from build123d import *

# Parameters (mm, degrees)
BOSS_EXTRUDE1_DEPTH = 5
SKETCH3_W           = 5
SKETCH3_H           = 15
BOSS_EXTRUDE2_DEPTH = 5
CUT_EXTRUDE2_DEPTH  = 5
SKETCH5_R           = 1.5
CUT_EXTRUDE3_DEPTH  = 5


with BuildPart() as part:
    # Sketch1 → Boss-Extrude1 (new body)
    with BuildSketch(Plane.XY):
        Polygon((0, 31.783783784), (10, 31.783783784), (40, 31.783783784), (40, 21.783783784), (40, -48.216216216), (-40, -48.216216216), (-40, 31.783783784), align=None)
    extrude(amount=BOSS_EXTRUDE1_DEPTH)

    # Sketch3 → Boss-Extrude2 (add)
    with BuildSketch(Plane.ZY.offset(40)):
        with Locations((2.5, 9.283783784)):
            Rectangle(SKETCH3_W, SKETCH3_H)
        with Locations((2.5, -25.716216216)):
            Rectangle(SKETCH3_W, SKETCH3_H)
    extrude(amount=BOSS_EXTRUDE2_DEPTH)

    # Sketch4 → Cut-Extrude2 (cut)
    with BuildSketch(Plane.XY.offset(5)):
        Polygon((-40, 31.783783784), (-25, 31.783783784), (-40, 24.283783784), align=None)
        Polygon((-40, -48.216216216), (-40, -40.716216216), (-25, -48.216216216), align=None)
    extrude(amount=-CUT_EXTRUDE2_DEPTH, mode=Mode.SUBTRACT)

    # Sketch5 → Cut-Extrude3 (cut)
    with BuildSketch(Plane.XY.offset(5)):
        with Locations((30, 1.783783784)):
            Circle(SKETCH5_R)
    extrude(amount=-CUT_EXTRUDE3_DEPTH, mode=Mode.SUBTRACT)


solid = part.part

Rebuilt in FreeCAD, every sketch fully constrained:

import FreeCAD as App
import Part
import Sketcher


def add_polygon(sketch, points):
    """Adds a closed chain of lines whose ends are joined by coincident constraints."""
    first, n = sketch.GeometryCount, len(points)
    for a, b in zip(points, points[1:] + points[:1]):
        sketch.addGeometry(Part.LineSegment(App.Vector(*a, 0), App.Vector(*b, 0)), False)
    for i in range(n):
        sketch.addConstraint(Sketcher.Constraint("Coincident", first + i, 2, first + (i + 1) % n, 1))

doc = App.newDocument("Part")
body = doc.addObject("PartDesign::Body", "Body")

sketch1 = doc.addObject("Sketcher::SketchObject", "Sketch")
body.addObject(sketch1)
sketch1.AttachmentSupport = (doc.XY_Plane, [""])
sketch1.MapMode = "FlatFace"
add_polygon(sketch1, [(40, 31.783784), (-40, 31.783784), (-40, -48.216216), (40, -48.216216)])
sketch1.addConstraint(Sketcher.Constraint("Horizontal", 0))
sketch1.addConstraint(Sketcher.Constraint("Vertical", 1))
sketch1.addConstraint(Sketcher.Constraint("Horizontal", 2))
sketch1.addConstraint(Sketcher.Constraint("Vertical", 3))
sketch1.addConstraint(Sketcher.Constraint("Equal", 2, 1))
sketch1.addConstraint(Sketcher.Constraint("DistanceX", 0, 2, 0, 1, 80.0))
sketch1.addConstraint(Sketcher.Constraint("DistanceX", 0, 2, -1, 1, 40.0))
sketch1.addConstraint(Sketcher.Constraint("DistanceY", -1, 1, 0, 2, 31.783784))
pad1 = doc.addObject("PartDesign::Pad", "Pad")
body.addObject(pad1)
pad1.Profile = sketch1
pad1.Length = 5

sketch2 = doc.addObject("Sketcher::SketchObject", "Sketch001")
body.addObject(sketch2)
sketch2.AttachmentSupport = (doc.YZ_Plane, [""])
sketch2.MapMode = "FlatFace"
sketch2.AttachmentOffset = App.Placement(App.Vector(0, 0, -40), App.Rotation())
add_polygon(sketch2, [(16.783784, 0), (1.783784, 0), (1.783784, 5), (16.783784, 5)])
add_polygon(sketch2, [(-18.216216, 0), (-33.216216, 0), (-33.216216, 5), (-18.216216, 5)])
sketch2.addConstraint(Sketcher.Constraint("Horizontal", 0))
sketch2.addConstraint(Sketcher.Constraint("Vertical", 1))
sketch2.addConstraint(Sketcher.Constraint("Horizontal", 2))
sketch2.addConstraint(Sketcher.Constraint("Vertical", 3))
sketch2.addConstraint(Sketcher.Constraint("Horizontal", 4))
sketch2.addConstraint(Sketcher.Constraint("Vertical", 5))
sketch2.addConstraint(Sketcher.Constraint("Horizontal", 6))
sketch2.addConstraint(Sketcher.Constraint("Vertical", 7))
sketch2.addConstraint(Sketcher.Constraint("PointOnObject", 0, 2, -1))
sketch2.addConstraint(Sketcher.Constraint("PointOnObject", 4, 2, -1))
sketch2.addConstraint(Sketcher.Constraint("Horizontal", 2, 2, 5, 2))
sketch2.addConstraint(Sketcher.Constraint("Equal", 2, 4))
sketch2.addConstraint(Sketcher.Constraint("DistanceX", 0, 2, 0, 1, 15.0))
sketch2.addConstraint(Sketcher.Constraint("DistanceY", 1, 1, 1, 2, 5.0))
sketch2.addConstraint(Sketcher.Constraint("DistanceX", 4, 2, 0, 2, 35.0))
sketch2.addConstraint(Sketcher.Constraint("DistanceX", -1, 1, 0, 2, 1.783784))
pad2 = doc.addObject("PartDesign::Pad", "Pad001")
body.addObject(pad2)
pad2.Profile = sketch2
pad2.Length = 5
pad2.Reversed = True

sketch3 = doc.addObject("Sketcher::SketchObject", "Sketch002")
body.addObject(sketch3)
sketch3.AttachmentSupport = (doc.XY_Plane, [""])
sketch3.MapMode = "FlatFace"
sketch3.AttachmentOffset = App.Placement(App.Vector(0, 0, 5), App.Rotation())
add_polygon(sketch3, [(-25, 31.783784), (-40, 31.783784), (-40, 24.283784)])
add_polygon(sketch3, [(-40, -40.716216), (-40, -48.216216), (-25, -48.216216)])
sketch3.addConstraint(Sketcher.Constraint("Horizontal", 0))
sketch3.addConstraint(Sketcher.Constraint("Vertical", 1))
sketch3.addConstraint(Sketcher.Constraint("Vertical", 3))
sketch3.addConstraint(Sketcher.Constraint("Horizontal", 4))
sketch3.addConstraint(Sketcher.Constraint("Vertical", 1, 2, 3, 2))
sketch3.addConstraint(Sketcher.Constraint("Vertical", 2, 2, 4, 2))
sketch3.addConstraint(Sketcher.Constraint("Equal", 1, 3))
sketch3.addConstraint(Sketcher.Constraint("DistanceX", 0, 2, 0, 1, 15.0))
sketch3.addConstraint(Sketcher.Constraint("DistanceY", 1, 2, 1, 1, 7.5))
sketch3.addConstraint(Sketcher.Constraint("DistanceX", 0, 2, -1, 1, 40.0))
sketch3.addConstraint(Sketcher.Constraint("DistanceY", 3, 2, 0, 2, 80.0))
sketch3.addConstraint(Sketcher.Constraint("DistanceY", -1, 1, 0, 2, 31.783784))
pocket1 = doc.addObject("PartDesign::Pocket", "Pocket")
body.addObject(pocket1)
pocket1.Profile = sketch3
pocket1.Length = 5

sketch4 = doc.addObject("Sketcher::SketchObject", "Sketch003")
body.addObject(sketch4)
sketch4.AttachmentSupport = (doc.XY_Plane, [""])
sketch4.MapMode = "FlatFace"
sketch4.AttachmentOffset = App.Placement(App.Vector(0, 0, 5), App.Rotation())
sketch4.addGeometry(Part.Circle(App.Vector(30, 1.783784, 0), App.Vector(0, 0, 1), 1.5), False)
sketch4.addConstraint(Sketcher.Constraint("Diameter", 0, 3.0))
sketch4.addConstraint(Sketcher.Constraint("DistanceX", -1, 1, 0, 3, 30.0))
sketch4.addConstraint(Sketcher.Constraint("DistanceY", -1, 1, 0, 3, 1.783784))
pocket2 = doc.addObject("PartDesign::Pocket", "Pocket001")
body.addObject(pocket2)
pocket2.Profile = sketch4
pocket2.Length = 5

doc.recompute()
